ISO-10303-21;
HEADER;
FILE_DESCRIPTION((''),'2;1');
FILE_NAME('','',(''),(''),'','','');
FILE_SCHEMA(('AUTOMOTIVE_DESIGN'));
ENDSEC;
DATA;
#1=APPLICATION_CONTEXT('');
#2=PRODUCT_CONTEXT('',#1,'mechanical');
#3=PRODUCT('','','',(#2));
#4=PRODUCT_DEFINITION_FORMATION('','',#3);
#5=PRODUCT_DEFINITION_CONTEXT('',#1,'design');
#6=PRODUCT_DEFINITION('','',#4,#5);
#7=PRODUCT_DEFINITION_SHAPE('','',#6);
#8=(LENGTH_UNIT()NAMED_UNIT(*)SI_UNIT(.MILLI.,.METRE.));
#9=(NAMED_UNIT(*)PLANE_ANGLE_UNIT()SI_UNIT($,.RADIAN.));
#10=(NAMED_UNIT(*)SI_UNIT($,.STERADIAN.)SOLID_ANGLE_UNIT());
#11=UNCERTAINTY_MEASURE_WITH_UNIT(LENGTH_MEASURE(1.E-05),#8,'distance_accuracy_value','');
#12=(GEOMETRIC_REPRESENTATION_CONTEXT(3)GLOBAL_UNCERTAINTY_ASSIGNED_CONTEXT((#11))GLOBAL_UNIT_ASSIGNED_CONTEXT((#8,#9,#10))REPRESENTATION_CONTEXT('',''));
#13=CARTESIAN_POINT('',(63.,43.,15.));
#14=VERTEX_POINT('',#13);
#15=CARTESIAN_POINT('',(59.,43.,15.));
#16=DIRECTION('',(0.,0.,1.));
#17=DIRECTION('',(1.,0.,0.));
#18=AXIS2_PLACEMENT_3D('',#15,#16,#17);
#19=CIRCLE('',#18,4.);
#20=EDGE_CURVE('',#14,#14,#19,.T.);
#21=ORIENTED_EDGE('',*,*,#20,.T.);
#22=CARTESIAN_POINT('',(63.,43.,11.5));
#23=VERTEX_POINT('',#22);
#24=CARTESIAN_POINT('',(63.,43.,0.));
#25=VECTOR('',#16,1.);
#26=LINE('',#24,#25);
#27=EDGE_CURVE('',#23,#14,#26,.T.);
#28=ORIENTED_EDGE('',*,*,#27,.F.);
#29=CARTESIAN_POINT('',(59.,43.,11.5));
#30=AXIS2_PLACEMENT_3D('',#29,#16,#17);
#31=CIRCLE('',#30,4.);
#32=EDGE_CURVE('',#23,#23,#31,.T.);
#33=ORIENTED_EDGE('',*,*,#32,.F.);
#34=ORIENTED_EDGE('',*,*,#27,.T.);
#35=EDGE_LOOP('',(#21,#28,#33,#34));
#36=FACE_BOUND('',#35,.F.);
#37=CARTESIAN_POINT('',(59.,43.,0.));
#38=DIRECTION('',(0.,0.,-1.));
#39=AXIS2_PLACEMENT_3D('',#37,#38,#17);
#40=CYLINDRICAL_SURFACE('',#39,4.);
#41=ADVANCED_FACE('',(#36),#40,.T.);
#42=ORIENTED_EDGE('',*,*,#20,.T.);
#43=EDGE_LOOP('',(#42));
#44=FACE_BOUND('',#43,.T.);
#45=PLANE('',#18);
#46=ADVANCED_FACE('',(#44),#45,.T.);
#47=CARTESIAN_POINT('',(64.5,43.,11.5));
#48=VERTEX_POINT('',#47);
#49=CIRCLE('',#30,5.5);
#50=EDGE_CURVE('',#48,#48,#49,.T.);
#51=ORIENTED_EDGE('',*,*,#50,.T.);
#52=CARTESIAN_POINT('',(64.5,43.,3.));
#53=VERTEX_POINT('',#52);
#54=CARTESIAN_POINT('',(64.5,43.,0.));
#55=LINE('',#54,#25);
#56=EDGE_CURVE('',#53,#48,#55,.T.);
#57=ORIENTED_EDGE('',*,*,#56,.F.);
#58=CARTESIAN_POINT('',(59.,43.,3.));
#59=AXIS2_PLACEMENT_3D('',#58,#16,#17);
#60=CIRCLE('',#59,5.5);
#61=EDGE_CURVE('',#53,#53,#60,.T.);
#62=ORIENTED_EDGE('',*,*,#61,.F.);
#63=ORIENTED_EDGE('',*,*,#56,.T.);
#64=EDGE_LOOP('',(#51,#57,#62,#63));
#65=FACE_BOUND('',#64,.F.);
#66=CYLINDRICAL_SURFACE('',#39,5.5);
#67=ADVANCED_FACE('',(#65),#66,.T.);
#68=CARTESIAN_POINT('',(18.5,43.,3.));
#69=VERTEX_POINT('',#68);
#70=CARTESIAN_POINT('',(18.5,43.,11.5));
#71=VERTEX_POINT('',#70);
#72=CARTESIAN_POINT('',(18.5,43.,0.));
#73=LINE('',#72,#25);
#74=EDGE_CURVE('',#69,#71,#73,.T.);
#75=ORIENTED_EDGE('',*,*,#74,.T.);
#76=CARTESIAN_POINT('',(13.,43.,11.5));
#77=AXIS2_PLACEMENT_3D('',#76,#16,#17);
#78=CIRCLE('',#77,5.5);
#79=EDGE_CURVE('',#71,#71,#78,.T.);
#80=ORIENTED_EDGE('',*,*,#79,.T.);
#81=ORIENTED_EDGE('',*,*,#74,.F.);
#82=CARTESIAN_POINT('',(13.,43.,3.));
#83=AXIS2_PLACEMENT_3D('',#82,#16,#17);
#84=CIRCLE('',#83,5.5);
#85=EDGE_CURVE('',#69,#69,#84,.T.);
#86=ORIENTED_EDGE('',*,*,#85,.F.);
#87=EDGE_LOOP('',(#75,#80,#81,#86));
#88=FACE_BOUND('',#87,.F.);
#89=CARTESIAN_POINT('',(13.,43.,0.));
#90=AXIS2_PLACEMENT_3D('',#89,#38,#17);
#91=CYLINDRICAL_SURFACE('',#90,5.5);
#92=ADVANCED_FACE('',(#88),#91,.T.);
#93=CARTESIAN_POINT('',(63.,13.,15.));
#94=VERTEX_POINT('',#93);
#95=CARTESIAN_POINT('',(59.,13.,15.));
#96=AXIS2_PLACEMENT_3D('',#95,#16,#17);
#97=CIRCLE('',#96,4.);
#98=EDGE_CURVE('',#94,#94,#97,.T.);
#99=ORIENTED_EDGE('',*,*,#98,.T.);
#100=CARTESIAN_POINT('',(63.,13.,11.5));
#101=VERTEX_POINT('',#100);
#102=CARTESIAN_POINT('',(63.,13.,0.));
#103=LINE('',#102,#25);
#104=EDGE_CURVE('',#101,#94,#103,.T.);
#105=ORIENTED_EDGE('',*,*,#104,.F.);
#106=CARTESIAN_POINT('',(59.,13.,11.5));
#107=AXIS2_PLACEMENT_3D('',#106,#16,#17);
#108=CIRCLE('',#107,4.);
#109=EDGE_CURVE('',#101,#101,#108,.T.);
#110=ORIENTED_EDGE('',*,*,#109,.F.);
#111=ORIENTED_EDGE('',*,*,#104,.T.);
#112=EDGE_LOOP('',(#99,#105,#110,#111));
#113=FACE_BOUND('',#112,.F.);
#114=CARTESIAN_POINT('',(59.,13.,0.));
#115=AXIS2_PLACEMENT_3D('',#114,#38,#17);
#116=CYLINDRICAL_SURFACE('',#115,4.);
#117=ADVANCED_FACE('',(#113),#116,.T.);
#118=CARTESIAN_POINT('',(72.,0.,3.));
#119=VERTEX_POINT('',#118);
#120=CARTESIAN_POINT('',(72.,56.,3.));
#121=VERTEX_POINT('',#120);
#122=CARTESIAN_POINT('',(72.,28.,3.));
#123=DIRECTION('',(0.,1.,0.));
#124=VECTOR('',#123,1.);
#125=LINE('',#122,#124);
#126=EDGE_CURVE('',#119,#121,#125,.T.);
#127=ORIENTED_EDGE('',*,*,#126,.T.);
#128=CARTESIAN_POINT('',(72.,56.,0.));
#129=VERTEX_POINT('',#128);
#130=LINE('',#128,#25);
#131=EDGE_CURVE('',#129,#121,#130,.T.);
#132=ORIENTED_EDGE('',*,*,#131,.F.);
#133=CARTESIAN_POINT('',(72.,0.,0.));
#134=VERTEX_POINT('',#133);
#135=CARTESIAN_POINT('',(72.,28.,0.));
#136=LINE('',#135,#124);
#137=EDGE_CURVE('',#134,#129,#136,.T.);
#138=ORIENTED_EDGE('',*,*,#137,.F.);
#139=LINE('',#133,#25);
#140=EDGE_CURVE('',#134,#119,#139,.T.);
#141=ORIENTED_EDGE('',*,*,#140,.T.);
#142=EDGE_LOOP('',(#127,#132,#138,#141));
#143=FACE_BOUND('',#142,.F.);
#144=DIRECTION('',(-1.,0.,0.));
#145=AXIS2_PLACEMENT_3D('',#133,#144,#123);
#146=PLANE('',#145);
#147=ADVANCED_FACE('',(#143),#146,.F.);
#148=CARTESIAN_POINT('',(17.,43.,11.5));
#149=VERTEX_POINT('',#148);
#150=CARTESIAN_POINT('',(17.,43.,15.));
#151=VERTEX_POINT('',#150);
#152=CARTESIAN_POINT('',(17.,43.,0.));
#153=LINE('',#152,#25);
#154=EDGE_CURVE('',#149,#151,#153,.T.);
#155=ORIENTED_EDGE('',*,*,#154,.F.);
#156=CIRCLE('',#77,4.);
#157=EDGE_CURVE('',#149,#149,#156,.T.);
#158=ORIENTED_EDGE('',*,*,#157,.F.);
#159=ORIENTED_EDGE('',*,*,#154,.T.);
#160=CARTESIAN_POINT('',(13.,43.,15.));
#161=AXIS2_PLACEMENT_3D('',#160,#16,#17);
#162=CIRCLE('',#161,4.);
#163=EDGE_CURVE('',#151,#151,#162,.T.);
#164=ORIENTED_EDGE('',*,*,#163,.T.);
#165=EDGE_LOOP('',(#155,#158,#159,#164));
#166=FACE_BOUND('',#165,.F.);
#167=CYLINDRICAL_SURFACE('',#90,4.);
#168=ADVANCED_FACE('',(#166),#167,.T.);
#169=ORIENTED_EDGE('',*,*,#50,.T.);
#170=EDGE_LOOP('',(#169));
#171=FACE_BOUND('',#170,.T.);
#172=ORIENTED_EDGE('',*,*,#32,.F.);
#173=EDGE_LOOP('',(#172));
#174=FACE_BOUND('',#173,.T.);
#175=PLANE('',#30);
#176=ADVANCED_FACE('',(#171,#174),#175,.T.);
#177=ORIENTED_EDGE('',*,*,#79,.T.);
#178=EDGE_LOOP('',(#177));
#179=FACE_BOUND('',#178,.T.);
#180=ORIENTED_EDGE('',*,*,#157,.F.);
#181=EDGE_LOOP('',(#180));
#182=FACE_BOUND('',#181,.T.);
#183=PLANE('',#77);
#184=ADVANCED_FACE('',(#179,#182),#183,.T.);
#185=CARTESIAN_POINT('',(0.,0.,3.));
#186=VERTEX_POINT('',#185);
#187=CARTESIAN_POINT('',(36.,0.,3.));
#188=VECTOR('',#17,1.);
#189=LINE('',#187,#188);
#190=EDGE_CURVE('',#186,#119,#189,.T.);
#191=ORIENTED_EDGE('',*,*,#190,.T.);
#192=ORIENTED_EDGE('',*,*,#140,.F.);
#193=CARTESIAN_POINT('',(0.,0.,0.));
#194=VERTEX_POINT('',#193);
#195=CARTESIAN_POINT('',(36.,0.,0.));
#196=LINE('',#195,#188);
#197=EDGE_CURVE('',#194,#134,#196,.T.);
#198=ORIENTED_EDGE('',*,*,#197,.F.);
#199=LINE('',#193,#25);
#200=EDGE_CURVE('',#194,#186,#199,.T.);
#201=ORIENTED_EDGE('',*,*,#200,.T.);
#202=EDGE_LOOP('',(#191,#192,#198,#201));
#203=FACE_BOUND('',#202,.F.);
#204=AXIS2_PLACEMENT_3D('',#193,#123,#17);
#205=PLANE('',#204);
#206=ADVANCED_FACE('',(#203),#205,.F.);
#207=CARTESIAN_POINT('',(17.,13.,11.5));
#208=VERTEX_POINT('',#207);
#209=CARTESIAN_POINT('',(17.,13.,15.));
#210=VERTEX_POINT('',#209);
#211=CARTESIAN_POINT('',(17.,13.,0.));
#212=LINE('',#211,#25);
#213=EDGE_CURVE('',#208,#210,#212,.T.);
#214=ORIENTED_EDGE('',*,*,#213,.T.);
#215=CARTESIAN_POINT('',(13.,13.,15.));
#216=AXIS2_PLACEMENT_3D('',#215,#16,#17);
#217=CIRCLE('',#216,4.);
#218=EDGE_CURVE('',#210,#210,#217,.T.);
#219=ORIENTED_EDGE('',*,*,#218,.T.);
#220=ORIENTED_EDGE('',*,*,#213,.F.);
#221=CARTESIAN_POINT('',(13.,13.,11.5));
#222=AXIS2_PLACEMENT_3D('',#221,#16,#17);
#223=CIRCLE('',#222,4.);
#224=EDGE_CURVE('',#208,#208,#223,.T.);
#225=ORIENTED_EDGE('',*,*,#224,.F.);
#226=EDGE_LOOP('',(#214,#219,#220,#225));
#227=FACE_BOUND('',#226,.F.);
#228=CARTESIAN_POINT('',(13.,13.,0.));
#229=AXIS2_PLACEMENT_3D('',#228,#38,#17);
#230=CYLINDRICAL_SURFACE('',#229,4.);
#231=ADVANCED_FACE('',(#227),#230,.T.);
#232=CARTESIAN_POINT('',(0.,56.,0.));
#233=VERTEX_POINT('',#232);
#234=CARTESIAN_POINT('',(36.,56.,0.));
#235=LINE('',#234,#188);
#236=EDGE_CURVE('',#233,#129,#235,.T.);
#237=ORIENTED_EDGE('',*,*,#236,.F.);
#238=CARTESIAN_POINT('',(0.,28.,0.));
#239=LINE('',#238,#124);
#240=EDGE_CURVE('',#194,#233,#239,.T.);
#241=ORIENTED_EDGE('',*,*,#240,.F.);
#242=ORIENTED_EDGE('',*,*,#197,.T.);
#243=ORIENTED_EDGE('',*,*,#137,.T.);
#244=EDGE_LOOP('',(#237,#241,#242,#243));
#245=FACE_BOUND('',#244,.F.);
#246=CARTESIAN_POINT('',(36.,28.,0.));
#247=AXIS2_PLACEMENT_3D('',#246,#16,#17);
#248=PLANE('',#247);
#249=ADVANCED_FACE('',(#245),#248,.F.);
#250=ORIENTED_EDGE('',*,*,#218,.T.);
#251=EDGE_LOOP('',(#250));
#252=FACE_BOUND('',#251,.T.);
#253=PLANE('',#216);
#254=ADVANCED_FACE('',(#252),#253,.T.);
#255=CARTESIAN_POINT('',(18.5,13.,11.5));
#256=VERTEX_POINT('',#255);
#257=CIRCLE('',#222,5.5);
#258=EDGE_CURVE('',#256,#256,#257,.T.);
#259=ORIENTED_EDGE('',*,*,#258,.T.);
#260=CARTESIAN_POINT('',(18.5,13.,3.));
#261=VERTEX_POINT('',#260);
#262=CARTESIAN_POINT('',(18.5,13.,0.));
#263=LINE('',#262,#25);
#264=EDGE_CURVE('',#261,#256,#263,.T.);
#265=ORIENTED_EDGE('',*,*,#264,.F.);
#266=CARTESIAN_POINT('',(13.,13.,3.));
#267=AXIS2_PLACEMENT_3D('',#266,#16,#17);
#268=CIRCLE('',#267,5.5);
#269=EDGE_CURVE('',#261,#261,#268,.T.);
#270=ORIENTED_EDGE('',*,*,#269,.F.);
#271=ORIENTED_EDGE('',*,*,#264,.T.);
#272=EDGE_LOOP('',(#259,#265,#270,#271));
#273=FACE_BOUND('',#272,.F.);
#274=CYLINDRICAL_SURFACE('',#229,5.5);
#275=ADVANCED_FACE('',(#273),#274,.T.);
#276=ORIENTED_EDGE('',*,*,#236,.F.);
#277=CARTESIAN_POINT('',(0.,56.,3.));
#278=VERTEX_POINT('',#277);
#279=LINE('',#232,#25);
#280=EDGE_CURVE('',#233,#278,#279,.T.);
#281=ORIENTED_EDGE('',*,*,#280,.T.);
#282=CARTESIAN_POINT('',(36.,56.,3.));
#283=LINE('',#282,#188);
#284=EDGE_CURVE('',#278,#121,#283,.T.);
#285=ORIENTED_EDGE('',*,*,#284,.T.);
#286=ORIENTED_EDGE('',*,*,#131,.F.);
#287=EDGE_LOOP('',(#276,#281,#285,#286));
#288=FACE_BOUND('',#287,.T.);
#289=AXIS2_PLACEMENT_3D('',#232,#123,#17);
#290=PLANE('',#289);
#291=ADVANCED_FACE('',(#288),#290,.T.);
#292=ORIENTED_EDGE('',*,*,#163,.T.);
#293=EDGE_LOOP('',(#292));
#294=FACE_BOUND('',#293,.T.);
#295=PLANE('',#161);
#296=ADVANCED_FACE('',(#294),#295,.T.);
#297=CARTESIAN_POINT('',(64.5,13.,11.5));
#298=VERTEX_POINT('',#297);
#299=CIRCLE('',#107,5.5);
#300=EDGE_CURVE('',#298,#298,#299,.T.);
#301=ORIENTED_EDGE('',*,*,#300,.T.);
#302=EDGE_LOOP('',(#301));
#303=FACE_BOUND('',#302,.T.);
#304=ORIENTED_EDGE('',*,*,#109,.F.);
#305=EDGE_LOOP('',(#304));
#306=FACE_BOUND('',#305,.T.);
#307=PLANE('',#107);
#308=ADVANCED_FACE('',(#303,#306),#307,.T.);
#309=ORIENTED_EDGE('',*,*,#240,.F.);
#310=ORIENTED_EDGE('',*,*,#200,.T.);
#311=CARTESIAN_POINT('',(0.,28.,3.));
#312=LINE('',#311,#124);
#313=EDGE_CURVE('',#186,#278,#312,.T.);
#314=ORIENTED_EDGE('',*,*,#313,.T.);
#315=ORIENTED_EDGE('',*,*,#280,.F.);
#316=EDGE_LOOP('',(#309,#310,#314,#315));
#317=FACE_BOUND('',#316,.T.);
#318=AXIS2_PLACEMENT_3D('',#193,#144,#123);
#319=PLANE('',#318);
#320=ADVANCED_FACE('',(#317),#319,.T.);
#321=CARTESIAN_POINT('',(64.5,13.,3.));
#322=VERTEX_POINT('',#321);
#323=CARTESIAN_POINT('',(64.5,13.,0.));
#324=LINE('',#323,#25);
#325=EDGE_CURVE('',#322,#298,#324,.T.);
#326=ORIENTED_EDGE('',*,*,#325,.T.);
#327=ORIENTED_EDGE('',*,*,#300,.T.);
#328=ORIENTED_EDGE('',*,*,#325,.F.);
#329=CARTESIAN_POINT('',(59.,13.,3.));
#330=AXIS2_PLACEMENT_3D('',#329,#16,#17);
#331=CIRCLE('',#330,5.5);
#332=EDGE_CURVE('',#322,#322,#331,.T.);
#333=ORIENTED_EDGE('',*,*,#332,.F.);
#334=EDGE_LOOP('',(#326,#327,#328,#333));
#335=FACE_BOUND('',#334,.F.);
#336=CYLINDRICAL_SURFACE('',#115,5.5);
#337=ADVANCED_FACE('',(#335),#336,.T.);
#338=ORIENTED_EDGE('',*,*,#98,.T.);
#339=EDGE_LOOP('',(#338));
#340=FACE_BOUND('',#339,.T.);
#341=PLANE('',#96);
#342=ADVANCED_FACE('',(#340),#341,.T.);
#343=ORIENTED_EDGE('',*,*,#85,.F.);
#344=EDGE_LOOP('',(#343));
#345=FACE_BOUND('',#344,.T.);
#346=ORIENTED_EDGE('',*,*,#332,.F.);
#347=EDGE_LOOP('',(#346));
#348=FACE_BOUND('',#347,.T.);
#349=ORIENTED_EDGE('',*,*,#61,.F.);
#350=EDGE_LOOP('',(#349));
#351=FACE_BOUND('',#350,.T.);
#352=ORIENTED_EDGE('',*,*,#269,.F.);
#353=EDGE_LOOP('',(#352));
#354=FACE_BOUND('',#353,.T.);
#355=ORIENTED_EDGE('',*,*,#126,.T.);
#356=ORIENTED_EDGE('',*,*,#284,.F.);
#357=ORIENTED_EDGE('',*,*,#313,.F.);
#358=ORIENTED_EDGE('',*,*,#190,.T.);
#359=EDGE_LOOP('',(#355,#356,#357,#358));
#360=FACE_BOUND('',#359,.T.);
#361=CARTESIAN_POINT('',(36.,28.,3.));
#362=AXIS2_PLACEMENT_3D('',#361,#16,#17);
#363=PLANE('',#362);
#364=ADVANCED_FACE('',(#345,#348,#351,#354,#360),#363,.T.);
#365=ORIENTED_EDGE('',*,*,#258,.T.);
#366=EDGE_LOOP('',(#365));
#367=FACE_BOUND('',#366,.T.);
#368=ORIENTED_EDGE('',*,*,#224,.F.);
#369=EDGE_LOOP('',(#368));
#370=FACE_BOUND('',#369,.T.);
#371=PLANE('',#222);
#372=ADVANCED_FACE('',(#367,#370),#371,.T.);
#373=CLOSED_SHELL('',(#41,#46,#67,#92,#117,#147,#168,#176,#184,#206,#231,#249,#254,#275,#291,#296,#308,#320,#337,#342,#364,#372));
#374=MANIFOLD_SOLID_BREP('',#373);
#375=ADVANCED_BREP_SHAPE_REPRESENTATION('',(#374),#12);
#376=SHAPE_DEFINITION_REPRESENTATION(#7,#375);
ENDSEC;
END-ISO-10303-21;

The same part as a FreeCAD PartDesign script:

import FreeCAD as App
import Part
import Sketcher
from FreeCAD import Vector

doc = App.newDocument("Part")
body = doc.addObject("PartDesign::Body", "Body")

sketch1 = doc.addObject("Sketcher::SketchObject", "Sketch")
body.addObject(sketch1)
sketch1.AttachmentSupport = (doc.XY_Plane, [""])
sketch1.MapMode = "FlatFace"
sketch1.addGeometry([
    Part.LineSegment(Vector(0, 56, 0), Vector(0, 0, 0)),
    Part.LineSegment(Vector(0, 0, 0), Vector(72, 0, 0)),
    Part.LineSegment(Vector(72, 0, 0), Vector(72, 56, 0)),
    Part.LineSegment(Vector(72, 56, 0), Vector(0, 56, 0)),
    Part.Circle(Vector(13, 13, 0), Vector(0, 0, 1), 5.5),
    Part.Circle(Vector(59, 13, 0), Vector(0, 0, 1), 5.5),
    Part.Circle(Vector(13, 43, 0), Vector(0, 0, 1), 5.5),
    Part.Circle(Vector(59, 43, 0), Vector(0, 0, 1), 5.5),
], False)
sketch1.addConstraint([
    Sketcher.Constraint("Coincident", 0, 2, 1, 1),
    Sketcher.Constraint("Coincident", 1, 2, 2, 1),
    Sketcher.Constraint("Coincident", 2, 2, 3, 1),
    Sketcher.Constraint("Coincident", 3, 2, 0, 1),
    Sketcher.Constraint("Vertical", 0),
    Sketcher.Constraint("Horizontal", 1),
    Sketcher.Constraint("Vertical", 2),
    Sketcher.Constraint("Horizontal", 3),
    Sketcher.Constraint("Coincident", 0, 2, -1, 1),
    Sketcher.Constraint("Equal", 4, 5),
    Sketcher.Constraint("Equal", 5, 6),
    Sketcher.Constraint("Equal", 6, 7),
    Sketcher.Constraint("Horizontal", 4, 3, 5, 3),
    Sketcher.Constraint("Horizontal", 6, 3, 7, 3),
    Sketcher.Constraint("Vertical", 4, 3, 6, 3),
    Sketcher.Constraint("Vertical", 5, 3, 7, 3),
    Sketcher.Constraint("Diameter", 4, 11.0),
    Sketcher.Constraint("DistanceX", 1, 1, 1, 2, 72.0),
    Sketcher.Constraint("DistanceY", 0, 2, 0, 1, 56.0),
    Sketcher.Constraint("DistanceX", -1, 1, 4, 3, 13.0),
    Sketcher.Constraint("DistanceY", -1, 1, 4, 3, 13.0),
    Sketcher.Constraint("DistanceX", -1, 1, 5, 3, 59.0),
    Sketcher.Constraint("DistanceY", -1, 1, 6, 3, 43.0),
])
pad1 = doc.addObject("PartDesign::Pad", "Pad")
body.addObject(pad1)
pad1.Profile = sketch1
pad1.Length = 3

sketch2 = doc.addObject("Sketcher::SketchObject", "Sketch001")
body.addObject(sketch2)
sketch2.AttachmentSupport = (doc.XY_Plane, [""])
sketch2.MapMode = "FlatFace"
sketch2.addGeometry([
    Part.Circle(Vector(59, 13, 0), Vector(0, 0, 1), 5.5),
    Part.Circle(Vector(59, 13, 0), Vector(0, 0, 1), 4),
    Part.Circle(Vector(59, 43, 0), Vector(0, 0, 1), 5.5),
    Part.Circle(Vector(59, 43, 0), Vector(0, 0, 1), 4),
    Part.Circle(Vector(13, 43, 0), Vector(0, 0, 1), 5.5),
    Part.Circle(Vector(13, 43, 0), Vector(0, 0, 1), 4),
    Part.Circle(Vector(13, 13, 0), Vector(0, 0, 1), 5.5),
    Part.Circle(Vector(13, 13, 0), Vector(0, 0, 1), 4),
], False)
sketch2.addConstraint([
    Sketcher.Constraint("Coincident", 1, 3, 0, 3),
    Sketcher.Constraint("Coincident", 3, 3, 2, 3),
    Sketcher.Constraint("Coincident", 5, 3, 4, 3),
    Sketcher.Constraint("Coincident", 7, 3, 6, 3),
    Sketcher.Constraint("Equal", 0, 2),
    Sketcher.Constraint("Equal", 1, 3),
    Sketcher.Constraint("Equal", 2, 4),
    Sketcher.Constraint("Equal", 3, 5),
    Sketcher.Constraint("Equal", 4, 6),
    Sketcher.Constraint("Equal", 5, 7),
    Sketcher.Constraint("Horizontal", 3, 3, 4, 3),
    Sketcher.Constraint("Horizontal", 1, 3, 6, 3),
    Sketcher.Constraint("Vertical", 1, 3, 2, 3),
    Sketcher.Constraint("Vertical", 5, 3, 6, 3),
    Sketcher.Constraint("Diameter", 0, 11.0),
    Sketcher.Constraint("Diameter", 1, 8.0),
    Sketcher.Constraint("DistanceX", -1, 1, 0, 3, 59.0),
    Sketcher.Constraint("DistanceY", -1, 1, 0, 3, 13.0),
    Sketcher.Constraint("DistanceY", -1, 1, 2, 3, 43.0),
    Sketcher.Constraint("DistanceX", -1, 1, 4, 3, 13.0),
])
pad2 = doc.addObject("PartDesign::Pad", "Pad001")
body.addObject(pad2)
pad2.Profile = sketch2
pad2.Length = 11.5

sketch3 = doc.addObject("Sketcher::SketchObject", "Sketch002")
body.addObject(sketch3)
sketch3.AttachmentSupport = (doc.XY_Plane, [""])
sketch3.MapMode = "FlatFace"
sketch3.addGeometry([
    Part.Circle(Vector(13, 43, 0), Vector(0, 0, 1), 4),
    Part.Circle(Vector(59, 43, 0), Vector(0, 0, 1), 4),
    Part.Circle(Vector(59, 13, 0), Vector(0, 0, 1), 4),
    Part.Circle(Vector(13, 13, 0), Vector(0, 0, 1), 4),
], False)
sketch3.addConstraint([
    Sketcher.Constraint("Equal", 0, 1),
    Sketcher.Constraint("Equal", 1, 2),
    Sketcher.Constraint("Equal", 2, 3),
    Sketcher.Constraint("Horizontal", 0, 3, 1, 3),
    Sketcher.Constraint("Horizontal", 2, 3, 3, 3),
    Sketcher.Constraint("Vertical", 1, 3, 2, 3),
    Sketcher.Constraint("Vertical", 0, 3, 3, 3),
    Sketcher.Constraint("Diameter", 0, 8.0),
    Sketcher.Constraint("DistanceX", -1, 1, 0, 3, 13.0),
    Sketcher.Constraint("DistanceY", -1, 1, 0, 3, 43.0),
    Sketcher.Constraint("DistanceX", -1, 1, 1, 3, 59.0),
    Sketcher.Constraint("DistanceY", -1, 1, 2, 3, 13.0),
])
pad3 = doc.addObject("PartDesign::Pad", "Pad002")
body.addObject(pad3)
pad3.Profile = sketch3
pad3.Length = 15

doc.recompute()
